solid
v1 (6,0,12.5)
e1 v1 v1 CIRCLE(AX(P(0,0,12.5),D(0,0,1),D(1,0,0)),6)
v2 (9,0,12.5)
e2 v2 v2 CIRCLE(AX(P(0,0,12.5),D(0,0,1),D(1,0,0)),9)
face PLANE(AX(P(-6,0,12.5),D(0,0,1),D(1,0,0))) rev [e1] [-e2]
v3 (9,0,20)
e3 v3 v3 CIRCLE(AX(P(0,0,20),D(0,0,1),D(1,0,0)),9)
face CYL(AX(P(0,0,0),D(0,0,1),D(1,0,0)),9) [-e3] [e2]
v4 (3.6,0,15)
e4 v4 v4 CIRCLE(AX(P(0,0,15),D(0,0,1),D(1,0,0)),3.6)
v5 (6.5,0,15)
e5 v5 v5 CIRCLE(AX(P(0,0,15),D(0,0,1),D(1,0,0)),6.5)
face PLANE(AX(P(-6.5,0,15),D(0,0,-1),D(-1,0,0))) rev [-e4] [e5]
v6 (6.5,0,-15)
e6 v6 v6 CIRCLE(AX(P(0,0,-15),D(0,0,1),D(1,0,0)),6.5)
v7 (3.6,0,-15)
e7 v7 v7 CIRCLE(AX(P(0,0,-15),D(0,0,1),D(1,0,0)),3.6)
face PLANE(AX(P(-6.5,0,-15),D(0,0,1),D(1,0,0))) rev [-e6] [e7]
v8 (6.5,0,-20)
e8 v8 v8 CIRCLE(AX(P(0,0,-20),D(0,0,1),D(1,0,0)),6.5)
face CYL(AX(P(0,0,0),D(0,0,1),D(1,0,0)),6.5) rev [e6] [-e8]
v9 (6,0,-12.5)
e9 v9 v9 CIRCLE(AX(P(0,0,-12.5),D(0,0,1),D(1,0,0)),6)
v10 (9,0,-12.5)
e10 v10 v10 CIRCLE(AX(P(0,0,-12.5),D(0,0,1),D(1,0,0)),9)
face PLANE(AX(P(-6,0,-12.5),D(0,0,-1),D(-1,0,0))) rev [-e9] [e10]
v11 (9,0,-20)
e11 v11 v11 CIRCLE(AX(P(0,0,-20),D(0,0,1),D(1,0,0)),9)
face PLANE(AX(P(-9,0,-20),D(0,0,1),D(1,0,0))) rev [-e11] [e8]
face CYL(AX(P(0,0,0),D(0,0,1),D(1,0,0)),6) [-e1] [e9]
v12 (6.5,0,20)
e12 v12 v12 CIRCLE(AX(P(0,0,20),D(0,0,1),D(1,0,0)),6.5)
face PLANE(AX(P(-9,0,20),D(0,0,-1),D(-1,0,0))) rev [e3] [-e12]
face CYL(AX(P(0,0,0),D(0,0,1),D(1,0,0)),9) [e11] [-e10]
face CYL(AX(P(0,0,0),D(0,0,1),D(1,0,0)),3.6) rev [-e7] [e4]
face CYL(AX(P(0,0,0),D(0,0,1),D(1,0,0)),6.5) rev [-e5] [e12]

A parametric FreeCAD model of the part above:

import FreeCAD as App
import Part
import Sketcher

V = App.Vector

doc = App.newDocument("Part")
body = doc.addObject("PartDesign::Body", "Body")

sketch1 = body.newObject("Sketcher::SketchObject", "Sketch")
sketch1.AttachmentSupport = (doc.getObject("XZ_Plane"), [""])
sketch1.MapMode = "FlatFace"
sketch1.addGeometry([
    Part.LineSegment(V(-6, -12.5, 0), V(-6, 12.5, 0)),
    Part.LineSegment(V(-6, 12.5, 0), V(-9, 12.5, 0)),
    Part.LineSegment(V(-9, 12.5, 0), V(-9, 20, 0)),
    Part.LineSegment(V(-9, 20, 0), V(-6.5, 20, 0)),
    Part.LineSegment(V(-6.5, 20, 0), V(-6.5, 15, 0)),
    Part.LineSegment(V(-6.5, 15, 0), V(-3.6, 15, 0)),
    Part.LineSegment(V(-3.6, 15, 0), V(-3.6, -15, 0)),
    Part.LineSegment(V(-3.6, -15, 0), V(-6.5, -15, 0)),
    Part.LineSegment(V(-6.5, -15, 0), V(-6.5, -20, 0)),
    Part.LineSegment(V(-6.5, -20, 0), V(-9, -20, 0)),
    Part.LineSegment(V(-9, -20, 0), V(-9, -12.5, 0)),
    Part.LineSegment(V(-9, -12.5, 0), V(-6, -12.5, 0)),
], False)
sketch1.addConstraint([
    Sketcher.Constraint("Coincident", 0, 2, 1, 1),
    Sketcher.Constraint("Coincident", 1, 2, 2, 1),
    Sketcher.Constraint("Coincident", 2, 2, 3, 1),
    Sketcher.Constraint("Coincident", 3, 2, 4, 1),
    Sketcher.Constraint("Coincident", 4, 2, 5, 1),
    Sketcher.Constraint("Coincident", 5, 2, 6, 1),
    Sketcher.Constraint("Coincident", 6, 2, 7, 1),
    Sketcher.Constraint("Coincident", 7, 2, 8, 1),
    Sketcher.Constraint("Coincident", 8, 2, 9, 1),
    Sketcher.Constraint("Coincident", 9, 2, 10, 1),
    Sketcher.Constraint("Coincident", 10, 2, 11, 1),
    Sketcher.Constraint("Coincident", 11, 2, 0, 1),
    Sketcher.Constraint("Vertical", 0),
    Sketcher.Constraint("Horizontal", 1),
    Sketcher.Constraint("Vertical", 2),
    Sketcher.Constraint("Horizontal", 3),
    Sketcher.Constraint("Vertical", 4),
    Sketcher.Constraint("Horizontal", 5),
    Sketcher.Constraint("Vertical", 6),
    Sketcher.Constraint("Horizontal", 7),
    Sketcher.Constraint("Vertical", 8),
    Sketcher.Constraint("Horizontal", 9),
    Sketcher.Constraint("Vertical", 10),
    Sketcher.Constraint("Horizontal", 11),
    Sketcher.Constraint("Symmetric", 4, 2, 7, 2, -1),
    Sketcher.Constraint("Symmetric", 2, 2, 9, 2, -1),
    Sketcher.Constraint("Equal", 2, 10),
    Sketcher.Constraint("DistanceX", 1, 2, 1, 1, 3.0),
    Sketcher.Constraint("DistanceY", 0, 1, 0, 2, 25.0),
    Sketcher.Constraint("DistanceY", 4, 2, 4, 1, 5.0),
    Sketcher.Constraint("DistanceY", 6, 2, 6, 1, 30.0),
    Sketcher.Constraint("DistanceX", 3, 1, 3, 2, 2.5),
    Sketcher.Constraint("DistanceX", 5, 1, 5, 2, 2.9),
    Sketcher.Constraint("DistanceX", 0, 2, -1, 1, 6.0),
])
revolution = body.newObject("PartDesign::Revolution", "Revolution")
revolution.Profile = sketch1
revolution.ReferenceAxis = (sketch1, ["V_Axis"])
revolution.Angle = 360

doc.recompute()
